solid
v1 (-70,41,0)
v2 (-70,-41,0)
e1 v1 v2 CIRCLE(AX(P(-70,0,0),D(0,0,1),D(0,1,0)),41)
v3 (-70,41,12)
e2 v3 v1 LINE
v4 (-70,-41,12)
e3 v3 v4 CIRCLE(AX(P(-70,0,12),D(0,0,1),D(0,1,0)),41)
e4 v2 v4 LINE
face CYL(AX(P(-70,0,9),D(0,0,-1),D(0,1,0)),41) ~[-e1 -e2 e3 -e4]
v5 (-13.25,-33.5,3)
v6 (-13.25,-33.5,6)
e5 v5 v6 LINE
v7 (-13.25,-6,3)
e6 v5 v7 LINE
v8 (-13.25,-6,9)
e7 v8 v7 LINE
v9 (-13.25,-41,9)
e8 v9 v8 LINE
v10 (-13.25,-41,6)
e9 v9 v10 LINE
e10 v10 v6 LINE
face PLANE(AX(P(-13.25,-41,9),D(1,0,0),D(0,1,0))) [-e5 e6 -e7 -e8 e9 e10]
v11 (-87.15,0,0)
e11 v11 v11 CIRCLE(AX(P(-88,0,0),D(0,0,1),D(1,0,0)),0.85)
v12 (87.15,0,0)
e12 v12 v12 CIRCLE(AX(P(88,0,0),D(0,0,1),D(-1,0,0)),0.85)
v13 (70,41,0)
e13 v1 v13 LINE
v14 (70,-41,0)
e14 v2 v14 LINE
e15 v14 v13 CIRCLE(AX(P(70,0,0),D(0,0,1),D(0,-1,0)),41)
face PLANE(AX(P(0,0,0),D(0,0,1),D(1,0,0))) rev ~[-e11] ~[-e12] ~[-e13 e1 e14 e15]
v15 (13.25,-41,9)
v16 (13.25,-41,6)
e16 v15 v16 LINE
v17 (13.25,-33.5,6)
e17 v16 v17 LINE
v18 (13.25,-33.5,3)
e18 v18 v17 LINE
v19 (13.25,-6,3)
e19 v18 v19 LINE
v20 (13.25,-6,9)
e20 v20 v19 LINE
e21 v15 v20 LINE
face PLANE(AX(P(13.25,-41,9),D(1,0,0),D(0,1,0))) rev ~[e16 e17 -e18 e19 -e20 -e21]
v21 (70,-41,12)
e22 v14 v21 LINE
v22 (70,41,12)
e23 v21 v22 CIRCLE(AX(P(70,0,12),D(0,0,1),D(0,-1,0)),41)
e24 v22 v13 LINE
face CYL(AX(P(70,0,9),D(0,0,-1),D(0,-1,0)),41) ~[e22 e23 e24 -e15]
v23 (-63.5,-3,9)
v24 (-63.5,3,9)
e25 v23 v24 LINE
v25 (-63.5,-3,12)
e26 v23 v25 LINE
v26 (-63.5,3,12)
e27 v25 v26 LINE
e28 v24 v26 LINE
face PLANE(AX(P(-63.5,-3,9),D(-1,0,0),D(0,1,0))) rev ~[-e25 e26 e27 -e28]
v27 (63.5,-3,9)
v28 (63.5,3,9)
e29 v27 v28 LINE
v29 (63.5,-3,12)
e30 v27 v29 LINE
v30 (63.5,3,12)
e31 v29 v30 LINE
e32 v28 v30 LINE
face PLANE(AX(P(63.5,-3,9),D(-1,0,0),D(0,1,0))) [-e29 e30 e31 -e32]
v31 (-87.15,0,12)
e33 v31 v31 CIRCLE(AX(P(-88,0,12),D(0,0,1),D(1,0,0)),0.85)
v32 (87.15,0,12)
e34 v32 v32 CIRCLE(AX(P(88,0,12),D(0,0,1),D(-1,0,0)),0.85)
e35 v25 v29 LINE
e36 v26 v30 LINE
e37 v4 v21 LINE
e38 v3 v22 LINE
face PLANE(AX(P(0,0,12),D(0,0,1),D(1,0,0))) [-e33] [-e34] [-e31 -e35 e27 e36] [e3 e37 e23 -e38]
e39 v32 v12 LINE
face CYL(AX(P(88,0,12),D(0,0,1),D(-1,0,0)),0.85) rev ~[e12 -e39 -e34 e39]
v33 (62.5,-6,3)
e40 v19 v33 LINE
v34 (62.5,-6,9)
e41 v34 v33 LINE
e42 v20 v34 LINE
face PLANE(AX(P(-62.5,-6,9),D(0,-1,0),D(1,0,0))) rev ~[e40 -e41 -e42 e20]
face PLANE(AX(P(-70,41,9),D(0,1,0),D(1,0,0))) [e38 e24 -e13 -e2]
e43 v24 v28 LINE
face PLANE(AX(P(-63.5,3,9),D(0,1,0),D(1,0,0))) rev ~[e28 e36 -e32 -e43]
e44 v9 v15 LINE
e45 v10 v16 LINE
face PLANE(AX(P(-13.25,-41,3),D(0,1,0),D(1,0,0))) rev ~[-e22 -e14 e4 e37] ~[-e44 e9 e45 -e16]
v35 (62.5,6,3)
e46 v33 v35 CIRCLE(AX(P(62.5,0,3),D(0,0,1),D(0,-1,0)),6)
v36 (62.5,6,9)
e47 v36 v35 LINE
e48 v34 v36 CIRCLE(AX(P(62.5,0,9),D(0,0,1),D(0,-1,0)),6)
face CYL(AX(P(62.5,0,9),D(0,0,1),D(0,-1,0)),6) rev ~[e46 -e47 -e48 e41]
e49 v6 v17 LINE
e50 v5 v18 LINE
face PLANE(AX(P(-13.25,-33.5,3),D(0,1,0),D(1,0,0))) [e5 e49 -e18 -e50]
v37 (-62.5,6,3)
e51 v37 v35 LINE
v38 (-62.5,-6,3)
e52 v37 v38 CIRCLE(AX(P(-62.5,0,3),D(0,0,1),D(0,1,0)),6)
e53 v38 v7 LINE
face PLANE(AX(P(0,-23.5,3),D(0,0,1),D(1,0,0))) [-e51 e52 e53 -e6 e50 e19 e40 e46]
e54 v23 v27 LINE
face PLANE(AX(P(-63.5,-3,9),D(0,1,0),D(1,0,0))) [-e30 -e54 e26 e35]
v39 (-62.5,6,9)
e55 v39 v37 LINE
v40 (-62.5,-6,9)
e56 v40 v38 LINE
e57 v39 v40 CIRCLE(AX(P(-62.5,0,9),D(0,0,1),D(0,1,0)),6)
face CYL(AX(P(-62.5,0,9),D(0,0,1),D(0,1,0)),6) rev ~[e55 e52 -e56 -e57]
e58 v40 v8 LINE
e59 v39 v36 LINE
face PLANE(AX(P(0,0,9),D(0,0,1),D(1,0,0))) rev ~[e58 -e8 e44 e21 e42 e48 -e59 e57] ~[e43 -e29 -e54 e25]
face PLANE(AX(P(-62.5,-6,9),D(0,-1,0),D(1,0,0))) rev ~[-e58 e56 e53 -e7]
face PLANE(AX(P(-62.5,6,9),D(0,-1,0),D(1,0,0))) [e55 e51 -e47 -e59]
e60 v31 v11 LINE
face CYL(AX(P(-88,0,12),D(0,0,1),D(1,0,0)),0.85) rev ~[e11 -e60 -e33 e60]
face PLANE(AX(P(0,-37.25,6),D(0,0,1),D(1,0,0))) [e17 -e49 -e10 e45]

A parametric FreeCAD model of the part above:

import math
import FreeCAD as App
import Part
import Sketcher
Q = App.Units.Quantity

doc = App.newDocument("Part")
body = doc.addObject("PartDesign::Body", "Body")

# Sketch on XY plane
sketch1 = doc.addObject("Sketcher::SketchObject", "Sketch")
body.addObject(sketch1)
sketch1.AttachmentSupport = (doc.XY_Plane, [""])
sketch1.MapMode = "FlatFace"
sketch1.addGeometry([
    Part.ArcOfCircle(Part.Circle(App.Vector(-70, 0, 0), App.Vector(0, 0, 1), 41), math.radians(90), math.radians(270)),
    Part.LineSegment(App.Vector(-70, -41, 0), App.Vector(70, -41, 0)),
    Part.ArcOfCircle(Part.Circle(App.Vector(70, 0, 0), App.Vector(0, 0, 1), 41), math.radians(-90), math.radians(90)),
    Part.LineSegment(App.Vector(70, 41, 0), App.Vector(-70, 41, 0)),
], False)
sketch1.addConstraint([
    Sketcher.Constraint("Tangent", 0, 2, 1, 1),
    Sketcher.Constraint("Tangent", 1, 2, 2, 1),
    Sketcher.Constraint("Tangent", 2, 2, 3, 1),
    Sketcher.Constraint("Tangent", 3, 2, 0, 1),
    Sketcher.Constraint("Horizontal", 1),
    Sketcher.Constraint("Horizontal", 3),
    Sketcher.Constraint("Symmetric", 0, 3, 2, 3, -1, 1),
    Sketcher.Constraint("Radius", 0, Q("41 mm")),
    Sketcher.Constraint("DistanceX", 1, 1, 1, 2, Q("140 mm")),
])
pad1 = doc.addObject("PartDesign::Pad", "Pad")
body.addObject(pad1)
pad1.Profile = sketch1
pad1.Length = 9

# Sketch on XY plane
sketch2 = doc.addObject("Sketcher::SketchObject", "Sketch001")
body.addObject(sketch2)
sketch2.AttachmentSupport = (doc.XY_Plane, [""])
sketch2.MapMode = "FlatFace"
sketch2.AttachmentOffset = App.Placement(App.Vector(0, 0, 9), App.Rotation())
sketch2.addGeometry([
    Part.ArcOfCircle(Part.Circle(App.Vector(-62, 0, 0), App.Vector(0, 0, 1), 6), math.radians(90), math.radians(270)),
    Part.LineSegment(App.Vector(-62, -6, 0), App.Vector(62, -6, 0)),
    Part.ArcOfCircle(Part.Circle(App.Vector(62, 0, 0), App.Vector(0, 0, 1), 6), math.radians(-90), math.radians(90)),
    Part.LineSegment(App.Vector(62, 6, 0), App.Vector(-62, 6, 0)),
], False)
sketch2.addConstraint([
    Sketcher.Constraint("Tangent", 0, 2, 1, 1),
    Sketcher.Constraint("Tangent", 1, 2, 2, 1),
    Sketcher.Constraint("Tangent", 2, 2, 3, 1),
    Sketcher.Constraint("Tangent", 3, 2, 0, 1),
    Sketcher.Constraint("Horizontal", 1),
    Sketcher.Constraint("Horizontal", 3),
    Sketcher.Constraint("Symmetric", 0, 3, 2, 3, -1, 1),
    Sketcher.Constraint("Radius", 0, Q("6 mm")),
    Sketcher.Constraint("DistanceX", 1, 1, 1, 2, Q("125 mm")),
])
pocket1 = doc.addObject("PartDesign::Pocket", "Pocket")
body.addObject(pocket1)
pocket1.Profile = sketch2
pocket1.Length = 6

# Sketch on XY plane
sketch3 = doc.addObject("Sketcher::SketchObject", "Sketch002")
body.addObject(sketch3)
sketch3.AttachmentSupport = (doc.XY_Plane, [""])
sketch3.MapMode = "FlatFace"
sketch3.AttachmentOffset = App.Placement(App.Vector(0, 0, 9), App.Rotation())
sketch3.addGeometry([
    Part.LineSegment(App.Vector(-13, -6, 0), App.Vector(-13, -41, 0)),
    Part.LineSegment(App.Vector(-13, -41, 0), App.Vector(13, -41, 0)),
    Part.LineSegment(App.Vector(13, -41, 0), App.Vector(13, -6, 0)),
    Part.LineSegment(App.Vector(13, -6, 0), App.Vector(-13, -6, 0)),
], False)
sketch3.addConstraint([
    Sketcher.Constraint("Coincident", 0, 2, 1, 1),
    Sketcher.Constraint("Coincident", 1, 2, 2, 1),
    Sketcher.Constraint("Coincident", 2, 2, 3, 1),
    Sketcher.Constraint("Coincident", 3, 2, 0, 1),
    Sketcher.Constraint("Vertical", 0),
    Sketcher.Constraint("Horizontal", 1),
    Sketcher.Constraint("Vertical", 2),
    Sketcher.Constraint("Horizontal", 3),
    Sketcher.Constraint("DistanceY", 0, 2, 0, 1, Q("35 mm")),
    Sketcher.Constraint("DistanceX", 1, 1, 1, 2, Q("26.5 mm")),
    Sketcher.Constraint("DistanceY", 0, 2, -1, 1, Q("41 mm")),
    Sketcher.Constraint("DistanceX", 0, 2, -1, 1, Q("13.25 mm")),
])
pocket2 = doc.addObject("PartDesign::Pocket", "Pocket001")
body.addObject(pocket2)
pocket2.Profile = sketch3
pocket2.Length = 6

# Sketch on XY plane
sketch4 = doc.addObject("Sketcher::SketchObject", "Sketch003")
body.addObject(sketch4)
sketch4.AttachmentSupport = (doc.XY_Plane, [""])
sketch4.MapMode = "FlatFace"
sketch4.AttachmentOffset = App.Placement(App.Vector(0, 0, 9), App.Rotation())
sketch4.addGeometry([
    Part.ArcOfCircle(Part.Circle(App.Vector(-70, 0, 0), App.Vector(0, 0, 1), 41), math.radians(90), math.radians(270)),  # 0
    Part.LineSegment(App.Vector(-70, -41, 0), App.Vector(70, -41, 0)),  # 1
    Part.ArcOfCircle(Part.Circle(App.Vector(70, 0, 0), App.Vector(0, 0, 1), 41), math.radians(-90), math.radians(90)),  # 2
    Part.LineSegment(App.Vector(70, 41, 0), App.Vector(-70, 41, 0)),  # 3
    Part.LineSegment(App.Vector(64, -3, 0), App.Vector(-64, -3, 0)),  # 4
    Part.LineSegment(App.Vector(-64, -3, 0), App.Vector(-64, 3, 0)),  # 5
    Part.LineSegment(App.Vector(-64, 3, 0), App.Vector(64, 3, 0)),  # 6
    Part.LineSegment(App.Vector(64, 3, 0), App.Vector(64, -3, 0)),  # 7
], False)
sketch4.addConstraint([
    Sketcher.Constraint("Tangent", 0, 2, 1, 1),
    Sketcher.Constraint("Tangent", 1, 2, 2, 1),
    Sketcher.Constraint("Tangent", 2, 2, 3, 1),
    Sketcher.Constraint("Tangent", 3, 2, 0, 1),
    Sketcher.Constraint("Coincident", 4, 2, 5, 1),
    Sketcher.Constraint("Coincident", 5, 2, 6, 1),
    Sketcher.Constraint("Coincident", 6, 2, 7, 1),
    Sketcher.Constraint("Coincident", 7, 2, 4, 1),
    Sketcher.Constraint("Horizontal", 1),
    Sketcher.Constraint("Horizontal", 3),
    Sketcher.Constraint("Horizontal", 4),
    Sketcher.Constraint("Vertical", 5),
    Sketcher.Constraint("Horizontal", 6),
    Sketcher.Constraint("Vertical", 7),
    Sketcher.Constraint("Symmetric", 0, 3, 2, 3, -1, 1),
    Sketcher.Constraint("Symmetric", 4, 2, 6, 2, -1, 1),
    Sketcher.Constraint("Radius", 0, Q("41 mm")),
    Sketcher.Constraint("DistanceX", 1, 1, 1, 2, Q("140 mm")),
    Sketcher.Constraint("DistanceX", 4, 2, 4, 1, Q("127 mm")),
    Sketcher.Constraint("DistanceY", 5, 1, 5, 2, Q("6 mm")),
])
pad2 = doc.addObject("PartDesign::Pad", "Pad001")
body.addObject(pad2)
pad2.Profile = sketch4
pad2.Length = 3

# Sketch on XY plane
sketch5 = doc.addObject("Sketcher::SketchObject", "Sketch004")
body.addObject(sketch5)
sketch5.AttachmentSupport = (doc.XY_Plane, [""])
sketch5.MapMode = "FlatFace"
sketch5.AttachmentOffset = App.Placement(App.Vector(0, 0, 12), App.Rotation())
sketch5.addGeometry(Part.Circle(App.Vector(-88, 0, 0), App.Vector(0, 0, 1), 0.8), False)
sketch5.addConstraint([
    Sketcher.Constraint("PointOnObject", 0, 3, -1),
    Sketcher.Constraint("Diameter", 0, Q("1.7 mm")),
    Sketcher.Constraint("DistanceX", 0, 3, -1, 1, Q("88 mm")),
])
pocket3 = doc.addObject("PartDesign::Pocket", "Pocket002")
body.addObject(pocket3)
pocket3.Profile = sketch5
pocket3.Type = "ThroughAll"
doc.recompute()

polarpattern = doc.addObject("PartDesign::PolarPattern", "PolarPattern")
body.addObject(polarpattern)
polarpattern.Originals = [pocket3]
polarpattern.Axis = (doc.Z_Axis, [""])
polarpattern.Angle = 360
polarpattern.Occurrences = 2
body.Tip = polarpattern

# Sketch on XY plane
sketch6 = doc.addObject("Sketcher::SketchObject", "Sketch005")
body.addObject(sketch6)
sketch6.AttachmentSupport = (doc.XY_Plane, [""])
sketch6.MapMode = "FlatFace"
sketch6.AttachmentOffset = App.Placement(App.Vector(0, 0, 3), App.Rotation())
sketch6.addGeometry([
    Part.LineSegment(App.Vector(-13, -34, 0), App.Vector(-13, -41, 0)),
    Part.LineSegment(App.Vector(-13, -41, 0), App.Vector(13, -41, 0)),
    Part.LineSegment(App.Vector(13, -41, 0), App.Vector(13, -34, 0)),
    Part.LineSegment(App.Vector(13, -34, 0), App.Vector(-13, -34, 0)),
], False)
sketch6.addConstraint([
    Sketcher.Constraint("Coincident", 0, 2, 1, 1),
    Sketcher.Constraint("Coincident", 1, 2, 2, 1),
    Sketcher.Constraint("Coincident", 2, 2, 3, 1),
    Sketcher.Constraint("Coincident", 3, 2, 0, 1),
    Sketcher.Constraint("Vertical", 0),
    Sketcher.Constraint("Horizontal", 1),
    Sketcher.Constraint("Vertical", 2),
    Sketcher.Constraint("Horizontal", 3),
    Sketcher.Constraint("DistanceX", 1, 1, 1, 2, Q("26.5 mm")),
    Sketcher.Constraint("DistanceY", 0, 2, 0, 1, Q("7.5 mm")),
    Sketcher.Constraint("DistanceY", 0, 2, -1, 1, Q("41 mm")),
    Sketcher.Constraint("DistanceX", 0, 2, -1, 1, Q("13.25 mm")),
])
pad3 = doc.addObject("PartDesign::Pad", "Pad002")
body.addObject(pad3)
pad3.Profile = sketch6
pad3.Length = 3

doc.recompute()
